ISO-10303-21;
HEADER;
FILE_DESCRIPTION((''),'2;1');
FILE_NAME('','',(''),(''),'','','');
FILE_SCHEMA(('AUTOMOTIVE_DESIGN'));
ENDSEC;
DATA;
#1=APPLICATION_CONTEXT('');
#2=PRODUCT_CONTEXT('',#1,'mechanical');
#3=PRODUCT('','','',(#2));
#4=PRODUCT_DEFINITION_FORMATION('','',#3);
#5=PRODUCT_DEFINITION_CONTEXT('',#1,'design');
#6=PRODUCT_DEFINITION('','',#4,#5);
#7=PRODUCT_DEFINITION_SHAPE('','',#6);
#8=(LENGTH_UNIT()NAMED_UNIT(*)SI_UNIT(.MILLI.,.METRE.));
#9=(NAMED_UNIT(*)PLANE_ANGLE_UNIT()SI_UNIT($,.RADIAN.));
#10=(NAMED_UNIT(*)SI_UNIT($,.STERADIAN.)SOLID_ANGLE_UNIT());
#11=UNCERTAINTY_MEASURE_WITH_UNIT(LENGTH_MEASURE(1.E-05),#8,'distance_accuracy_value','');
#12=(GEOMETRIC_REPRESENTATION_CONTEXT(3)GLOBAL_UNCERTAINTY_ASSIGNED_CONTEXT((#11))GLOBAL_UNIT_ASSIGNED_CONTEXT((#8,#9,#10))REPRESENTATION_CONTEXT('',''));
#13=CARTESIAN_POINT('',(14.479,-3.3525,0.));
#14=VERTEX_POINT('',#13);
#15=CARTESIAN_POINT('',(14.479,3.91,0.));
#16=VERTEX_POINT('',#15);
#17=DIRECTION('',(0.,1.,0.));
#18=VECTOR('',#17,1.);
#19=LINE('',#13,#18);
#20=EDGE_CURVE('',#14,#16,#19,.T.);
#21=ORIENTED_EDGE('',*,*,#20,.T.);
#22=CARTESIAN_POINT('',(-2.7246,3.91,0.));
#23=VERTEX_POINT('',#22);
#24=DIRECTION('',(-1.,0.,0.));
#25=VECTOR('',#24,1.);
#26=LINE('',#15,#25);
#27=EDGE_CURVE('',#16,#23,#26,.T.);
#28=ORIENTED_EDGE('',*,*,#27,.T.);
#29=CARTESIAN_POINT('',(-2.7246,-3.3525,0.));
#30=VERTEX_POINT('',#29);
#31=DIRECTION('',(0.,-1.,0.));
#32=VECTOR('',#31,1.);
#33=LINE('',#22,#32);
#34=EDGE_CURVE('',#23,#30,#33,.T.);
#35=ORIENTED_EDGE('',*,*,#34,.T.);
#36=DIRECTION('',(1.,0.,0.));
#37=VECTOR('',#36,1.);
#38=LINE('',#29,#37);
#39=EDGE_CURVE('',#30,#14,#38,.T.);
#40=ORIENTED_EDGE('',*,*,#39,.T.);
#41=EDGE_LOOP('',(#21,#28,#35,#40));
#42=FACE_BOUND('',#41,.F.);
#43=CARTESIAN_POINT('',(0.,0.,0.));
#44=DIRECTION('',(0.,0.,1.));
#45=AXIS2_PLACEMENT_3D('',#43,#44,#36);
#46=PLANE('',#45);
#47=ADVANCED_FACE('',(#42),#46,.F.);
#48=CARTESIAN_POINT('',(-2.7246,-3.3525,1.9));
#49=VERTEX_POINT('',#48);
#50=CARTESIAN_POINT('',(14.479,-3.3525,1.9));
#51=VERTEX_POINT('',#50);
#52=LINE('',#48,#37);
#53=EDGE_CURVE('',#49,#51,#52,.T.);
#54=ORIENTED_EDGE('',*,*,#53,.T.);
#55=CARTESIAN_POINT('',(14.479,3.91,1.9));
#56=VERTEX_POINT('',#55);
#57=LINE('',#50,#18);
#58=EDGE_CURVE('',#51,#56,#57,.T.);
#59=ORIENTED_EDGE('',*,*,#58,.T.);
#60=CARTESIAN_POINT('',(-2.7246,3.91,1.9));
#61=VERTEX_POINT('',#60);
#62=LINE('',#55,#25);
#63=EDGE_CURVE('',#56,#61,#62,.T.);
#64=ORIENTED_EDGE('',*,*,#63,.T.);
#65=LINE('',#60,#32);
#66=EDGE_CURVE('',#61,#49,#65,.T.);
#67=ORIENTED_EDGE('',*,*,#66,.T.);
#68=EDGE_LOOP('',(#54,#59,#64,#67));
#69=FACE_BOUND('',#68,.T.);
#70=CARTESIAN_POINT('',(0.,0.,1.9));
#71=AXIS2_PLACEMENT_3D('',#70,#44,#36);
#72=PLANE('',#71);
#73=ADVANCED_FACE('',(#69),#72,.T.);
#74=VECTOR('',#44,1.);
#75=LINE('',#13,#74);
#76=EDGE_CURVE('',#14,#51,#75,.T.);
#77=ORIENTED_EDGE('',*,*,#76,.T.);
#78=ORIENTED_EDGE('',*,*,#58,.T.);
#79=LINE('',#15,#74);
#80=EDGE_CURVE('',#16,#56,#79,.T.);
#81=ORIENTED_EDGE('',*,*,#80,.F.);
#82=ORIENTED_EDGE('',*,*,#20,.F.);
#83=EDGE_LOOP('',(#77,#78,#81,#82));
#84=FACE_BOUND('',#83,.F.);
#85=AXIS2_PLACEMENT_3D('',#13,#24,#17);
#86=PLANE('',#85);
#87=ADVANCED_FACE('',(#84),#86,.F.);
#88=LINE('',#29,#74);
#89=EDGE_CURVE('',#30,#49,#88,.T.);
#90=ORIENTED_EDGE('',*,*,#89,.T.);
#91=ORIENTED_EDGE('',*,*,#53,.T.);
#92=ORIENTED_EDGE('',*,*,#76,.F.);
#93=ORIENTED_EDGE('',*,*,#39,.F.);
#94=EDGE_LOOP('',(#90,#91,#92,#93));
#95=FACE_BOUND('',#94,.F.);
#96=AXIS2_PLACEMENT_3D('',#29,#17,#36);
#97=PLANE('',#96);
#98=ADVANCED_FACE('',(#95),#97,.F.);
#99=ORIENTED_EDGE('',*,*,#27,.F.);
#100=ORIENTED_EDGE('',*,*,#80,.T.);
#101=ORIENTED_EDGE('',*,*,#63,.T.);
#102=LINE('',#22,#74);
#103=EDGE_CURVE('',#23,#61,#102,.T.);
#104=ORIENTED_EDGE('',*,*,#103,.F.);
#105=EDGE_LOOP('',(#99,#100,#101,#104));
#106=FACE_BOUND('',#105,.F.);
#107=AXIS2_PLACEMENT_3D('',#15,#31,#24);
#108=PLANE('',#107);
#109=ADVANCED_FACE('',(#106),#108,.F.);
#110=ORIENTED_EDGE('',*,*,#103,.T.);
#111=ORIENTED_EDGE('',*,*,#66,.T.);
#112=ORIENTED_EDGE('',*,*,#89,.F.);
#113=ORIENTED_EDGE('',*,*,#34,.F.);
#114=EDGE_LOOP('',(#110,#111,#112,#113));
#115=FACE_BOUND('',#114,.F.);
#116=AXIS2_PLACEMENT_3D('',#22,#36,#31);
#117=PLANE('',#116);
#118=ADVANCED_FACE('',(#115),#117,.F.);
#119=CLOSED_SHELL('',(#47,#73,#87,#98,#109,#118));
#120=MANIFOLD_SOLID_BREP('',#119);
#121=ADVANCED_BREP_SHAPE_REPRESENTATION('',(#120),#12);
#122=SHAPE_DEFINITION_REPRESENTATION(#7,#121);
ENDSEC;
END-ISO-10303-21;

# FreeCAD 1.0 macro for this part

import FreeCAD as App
import Part
import Sketcher
Q = App.Units.Quantity


def add_polygon(sketch, points):
    """Adds a closed chain of lines whose ends are joined by coincident constraints."""
    first, n = sketch.GeometryCount, len(points)
    for a, b in zip(points, points[1:] + points[:1]):
        sketch.addGeometry(Part.LineSegment(App.Vector(*a, 0), App.Vector(*b, 0)), False)
    for i in range(n):
        sketch.addConstraint(Sketcher.Constraint("Coincident", first + i, 2, first + (i + 1) % n, 1))

doc = App.newDocument("Part")
body = doc.addObject("PartDesign::Body", "Body")

# Sketch on XY plane
sketch1 = body.newObject("Sketcher::SketchObject", "Sketch")
sketch1.AttachmentSupport = (doc.getObject("XY_Plane"), [""])
sketch1.MapMode = "FlatFace"
add_polygon(sketch1, [(-2.7246, 3.91), (-2.7246, -3.3525), (14.479, -3.3525), (14.479, 3.91)])  # lines 0-3
sketch1.addConstraint(Sketcher.Constraint("Vertical", 0))
sketch1.addConstraint(Sketcher.Constraint("Horizontal", 1))
sketch1.addConstraint(Sketcher.Constraint("Vertical", 2))
sketch1.addConstraint(Sketcher.Constraint("Horizontal", 3))
sketch1.addConstraint(Sketcher.Constraint("DistanceY", -1, 1, 2, 2, Q("3.91 mm")))
sketch1.addConstraint(Sketcher.Constraint("DistanceX", 1, 1, 1, 2, Q("17.2036 mm")))
sketch1.addConstraint(Sketcher.Constraint("DistanceY", 0, 2, 0, 1, Q("7.2625 mm")))
sketch1.addConstraint(Sketcher.Constraint("DistanceX", -1, 1, 1, 2, Q("14.479 mm")))
pad1 = body.newObject("PartDesign::Pad", "Pad")
pad1.Profile = sketch1
pad1.Length = 1.9

doc.recompute()
